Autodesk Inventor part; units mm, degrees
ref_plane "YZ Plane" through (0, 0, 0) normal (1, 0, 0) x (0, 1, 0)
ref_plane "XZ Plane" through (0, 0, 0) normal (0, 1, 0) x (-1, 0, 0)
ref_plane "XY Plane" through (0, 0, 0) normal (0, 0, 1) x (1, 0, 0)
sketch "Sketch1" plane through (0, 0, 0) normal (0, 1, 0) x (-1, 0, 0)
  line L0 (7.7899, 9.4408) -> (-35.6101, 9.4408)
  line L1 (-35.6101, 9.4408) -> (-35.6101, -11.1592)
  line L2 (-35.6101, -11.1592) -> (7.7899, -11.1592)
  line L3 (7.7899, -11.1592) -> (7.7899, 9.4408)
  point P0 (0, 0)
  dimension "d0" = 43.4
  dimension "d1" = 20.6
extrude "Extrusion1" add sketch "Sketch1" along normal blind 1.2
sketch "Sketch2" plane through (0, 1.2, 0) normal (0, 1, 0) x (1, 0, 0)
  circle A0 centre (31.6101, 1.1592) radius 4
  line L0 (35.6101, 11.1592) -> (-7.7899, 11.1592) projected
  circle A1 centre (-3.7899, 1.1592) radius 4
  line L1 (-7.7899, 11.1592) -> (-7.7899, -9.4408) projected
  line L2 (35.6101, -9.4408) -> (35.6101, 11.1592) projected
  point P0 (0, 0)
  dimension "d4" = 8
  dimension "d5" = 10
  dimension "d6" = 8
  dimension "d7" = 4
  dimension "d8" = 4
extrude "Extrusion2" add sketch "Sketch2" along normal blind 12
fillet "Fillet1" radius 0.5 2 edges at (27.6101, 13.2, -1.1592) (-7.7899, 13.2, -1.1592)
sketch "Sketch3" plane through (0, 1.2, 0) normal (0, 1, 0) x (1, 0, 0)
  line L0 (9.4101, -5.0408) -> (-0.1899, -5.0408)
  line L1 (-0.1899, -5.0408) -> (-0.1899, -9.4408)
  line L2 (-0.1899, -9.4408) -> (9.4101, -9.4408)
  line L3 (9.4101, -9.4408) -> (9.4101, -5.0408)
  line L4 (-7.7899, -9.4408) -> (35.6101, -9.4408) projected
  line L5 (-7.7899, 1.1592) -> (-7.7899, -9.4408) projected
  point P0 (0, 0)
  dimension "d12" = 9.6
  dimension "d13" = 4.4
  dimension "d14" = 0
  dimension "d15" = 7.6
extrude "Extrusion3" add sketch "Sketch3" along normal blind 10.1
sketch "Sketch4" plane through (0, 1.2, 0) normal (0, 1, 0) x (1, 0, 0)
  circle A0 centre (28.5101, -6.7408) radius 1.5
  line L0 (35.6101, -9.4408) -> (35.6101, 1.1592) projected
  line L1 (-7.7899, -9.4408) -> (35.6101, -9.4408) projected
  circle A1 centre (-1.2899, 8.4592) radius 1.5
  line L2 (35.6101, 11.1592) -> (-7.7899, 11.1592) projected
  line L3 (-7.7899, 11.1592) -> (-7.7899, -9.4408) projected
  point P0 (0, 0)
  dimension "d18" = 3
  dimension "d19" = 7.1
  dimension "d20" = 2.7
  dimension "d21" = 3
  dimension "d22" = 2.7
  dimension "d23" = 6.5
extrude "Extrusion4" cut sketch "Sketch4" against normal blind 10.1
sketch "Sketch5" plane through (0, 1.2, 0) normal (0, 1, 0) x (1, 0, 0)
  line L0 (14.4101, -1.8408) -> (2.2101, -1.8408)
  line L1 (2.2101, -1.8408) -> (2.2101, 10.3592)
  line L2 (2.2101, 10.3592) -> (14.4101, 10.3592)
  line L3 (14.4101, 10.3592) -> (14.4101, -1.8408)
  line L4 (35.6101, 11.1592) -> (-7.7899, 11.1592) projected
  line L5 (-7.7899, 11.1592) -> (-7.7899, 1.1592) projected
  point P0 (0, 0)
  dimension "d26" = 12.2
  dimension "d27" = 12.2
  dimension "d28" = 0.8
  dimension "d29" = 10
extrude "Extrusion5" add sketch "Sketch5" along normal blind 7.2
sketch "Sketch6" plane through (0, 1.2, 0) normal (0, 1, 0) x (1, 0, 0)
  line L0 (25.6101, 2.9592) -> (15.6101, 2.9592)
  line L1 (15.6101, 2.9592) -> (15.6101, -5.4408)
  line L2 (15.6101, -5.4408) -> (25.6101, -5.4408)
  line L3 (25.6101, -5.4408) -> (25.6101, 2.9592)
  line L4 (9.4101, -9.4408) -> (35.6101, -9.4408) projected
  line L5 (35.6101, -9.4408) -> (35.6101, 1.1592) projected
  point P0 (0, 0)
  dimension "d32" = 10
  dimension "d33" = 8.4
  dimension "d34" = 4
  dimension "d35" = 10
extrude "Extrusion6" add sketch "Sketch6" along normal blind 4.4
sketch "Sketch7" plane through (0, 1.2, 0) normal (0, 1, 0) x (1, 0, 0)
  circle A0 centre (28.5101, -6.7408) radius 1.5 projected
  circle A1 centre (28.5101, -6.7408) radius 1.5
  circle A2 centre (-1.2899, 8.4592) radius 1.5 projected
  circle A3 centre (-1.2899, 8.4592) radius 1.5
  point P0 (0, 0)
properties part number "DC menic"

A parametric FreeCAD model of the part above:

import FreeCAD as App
import Part
import Sketcher
Q = App.Units.Quantity


def edges_at(feature, points):
    """Names of the edges that pass closest to the given points."""
    edges = feature.Shape.Edges
    near = lambda p: min(range(len(edges)), key=lambda i: edges[i].distToShape(Part.Vertex(*p))[0])
    return sorted({f"Edge{near(p) + 1}" for p in points})


def add_polygon(sketch, points):
    """Adds a closed chain of lines whose ends are joined by coincident constraints."""
    first, n = sketch.GeometryCount, len(points)
    for a, b in zip(points, points[1:] + points[:1]):
        sketch.addGeometry(Part.LineSegment(App.Vector(*a, 0), App.Vector(*b, 0)), False)
    for i in range(n):
        sketch.addConstraint(Sketcher.Constraint("Coincident", first + i, 2, first + (i + 1) % n, 1))

doc = App.newDocument("Part")
body = doc.addObject("PartDesign::Body", "Body")

# Sketch on XZ plane
sketch1 = body.newObject("Sketcher::SketchObject", "Sketch")
sketch1.AttachmentSupport = (doc.getObject("XZ_Plane"), [""])
sketch1.MapMode = "FlatFace"
add_polygon(sketch1, [(-8, -11), (-8, 9), (36, 9), (36, -11)])  # lines 0-3
sketch1.addConstraint([
    Sketcher.Constraint("Vertical", 0),
    Sketcher.Constraint("Horizontal", 1),
    Sketcher.Constraint("Vertical", 2),
    Sketcher.Constraint("Horizontal", 3),
    Sketcher.Constraint("DistanceX", 1, 1, 1, 2, Q("43.4 mm")),
    Sketcher.Constraint("DistanceY", 0, 1, 0, 2, Q("20.6 mm")),
    Sketcher.Constraint("DistanceX", 0, 2, -1, 1, Q("7.79 mm")),
    Sketcher.Constraint("DistanceY", -1, 1, 0, 2, Q("9.4408 mm")),
])
pad1 = body.newObject("PartDesign::Pad", "Pad")
pad1.Profile = sketch1
pad1.Length = 1.2
pad1.Reversed = True

# Sketch on XZ plane
sketch2 = body.newObject("Sketcher::SketchObject", "Sketch001")
sketch2.AttachmentSupport = (doc.getObject("XZ_Plane"), [""])
sketch2.MapMode = "FlatFace"
sketch2.AttachmentOffset = App.Placement(App.Vector(0, 0, -1.2), App.Rotation())
sketch2.addGeometry([
    Part.Circle(App.Vector(31.6, -1.2, 0), App.Vector(0, 0, 1), 4),
    Part.Circle(App.Vector(-3.8, -1.2, 0), App.Vector(0, 0, 1), 4),
], False)
sketch2.addConstraint([
    Sketcher.Constraint("Equal", 0, 1),
    Sketcher.Constraint("Horizontal", 0, 3, 1, 3),
    Sketcher.Constraint("Diameter", 0, Q("8 mm")),
    Sketcher.Constraint("DistanceX", 1, 3, 0, 3, Q("35.4 mm")),
    Sketcher.Constraint("DistanceX", -1, 1, 0, 3, Q("31.61 mm")),
    Sketcher.Constraint("DistanceY", 0, 3, -1, 1, Q("1.1592 mm")),
])
pad2 = body.newObject("PartDesign::Pad", "Pad001")
pad2.Profile = sketch2
pad2.Length = 12
pad2.Reversed = True
doc.recompute()

fillet = body.newObject("PartDesign::Fillet", "Fillet")
fillet.Base = (pad2, edges_at(pad2, [(27.61, 13.2, -1.159), (-7.79, 13.2, -1.159)]))
fillet.Radius = 0.5

# Sketch on XZ plane
sketch3 = body.newObject("Sketcher::SketchObject", "Sketch002")
sketch3.AttachmentSupport = (doc.getObject("XZ_Plane"), [""])
sketch3.MapMode = "FlatFace"
sketch3.AttachmentOffset = App.Placement(App.Vector(0, 0, -1.2), App.Rotation())
add_polygon(sketch3, [(9.4, 9.4), (9.4, 5), (-0.2, 5), (-0.2, 9.4)])  # lines 0-3
sketch3.addConstraint([
    Sketcher.Constraint("Vertical", 0),
    Sketcher.Constraint("Horizontal", 1),
    Sketcher.Constraint("Vertical", 2),
    Sketcher.Constraint("Horizontal", 3),
    Sketcher.Constraint("DistanceX", 1, 2, 1, 1, Q("9.6 mm")),
    Sketcher.Constraint("DistanceY", 0, 2, 0, 1, Q("4.4 mm")),
    Sketcher.Constraint("DistanceX", -1, 1, 0, 2, Q("9.41 mm")),
    Sketcher.Constraint("DistanceY", -1, 1, 0, 2, Q("5.0408 mm")),
])
pad3 = body.newObject("PartDesign::Pad", "Pad002")
pad3.Profile = sketch3
pad3.Length = 10.1
pad3.Reversed = True

# Sketch on XZ plane
sketch4 = body.newObject("Sketcher::SketchObject", "Sketch003")
sketch4.AttachmentSupport = (doc.getObject("XZ_Plane"), [""])
sketch4.MapMode = "FlatFace"
sketch4.AttachmentOffset = App.Placement(App.Vector(0, 0, -1.2), App.Rotation())
sketch4.addGeometry([
    Part.Circle(App.Vector(28.5, 6.7, 0), App.Vector(0, 0, 1), 1.5),
    Part.Circle(App.Vector(-1.3, -8.5, 0), App.Vector(0, 0, 1), 1.5),
], False)
sketch4.addConstraint([
    Sketcher.Constraint("Equal", 0, 1),
    Sketcher.Constraint("Diameter", 0, Q("3 mm")),
    Sketcher.Constraint("DistanceX", 1, 3, 0, 3, Q("29.8 mm")),
    Sketcher.Constraint("DistanceY", 1, 3, 0, 3, Q("15.2 mm")),
    Sketcher.Constraint("DistanceX", -1, 1, 0, 3, Q("28.51 mm")),
    Sketcher.Constraint("DistanceY", -1, 1, 0, 3, Q("6.7408 mm")),
])
pocket1 = body.newObject("PartDesign::Pocket", "Pocket")
pocket1.Profile = sketch4
pocket1.Length = 10.1
pocket1.Reversed = True

# Sketch on XZ plane
sketch5 = body.newObject("Sketcher::SketchObject", "Sketch004")
sketch5.AttachmentSupport = (doc.getObject("XZ_Plane"), [""])
sketch5.MapMode = "FlatFace"
sketch5.AttachmentOffset = App.Placement(App.Vector(0, 0, -1.2), App.Rotation())
add_polygon(sketch5, [(2, 2), (14, 2), (14, -10), (2, -10)])  # lines 0-3
sketch5.addConstraint([
    Sketcher.Constraint("Horizontal", 0),
    Sketcher.Constraint("Vertical", 1),
    Sketcher.Constraint("Horizontal", 2),
    Sketcher.Constraint("Vertical", 3),
    Sketcher.Constraint("Equal", 2, 1),
    Sketcher.Constraint("DistanceX", 0, 1, 0, 2, Q("12.2 mm")),
    Sketcher.Constraint("DistanceX", -1, 1, 0, 2, Q("14.41 mm")),
    Sketcher.Constraint("DistanceY", -1, 1, 0, 2, Q("1.8408 mm")),
])
pad4 = body.newObject("PartDesign::Pad", "Pad003")
pad4.Profile = sketch5
pad4.Length = 7.2
pad4.Reversed = True

# Sketch on XZ plane
sketch6 = body.newObject("Sketcher::SketchObject", "Sketch005")
sketch6.AttachmentSupport = (doc.getObject("XZ_Plane"), [""])
sketch6.MapMode = "FlatFace"
sketch6.AttachmentOffset = App.Placement(App.Vector(0, 0, -1.2), App.Rotation())
add_polygon(sketch6, [(26, 5), (26, -3), (16, -3), (16, 5)])  # lines 0-3
sketch6.addConstraint([
    Sketcher.Constraint("Vertical", 0),
    Sketcher.Constraint("Horizontal", 1),
    Sketcher.Constraint("Vertical", 2),
    Sketcher.Constraint("Horizontal", 3),
    Sketcher.Constraint("DistanceX", 1, 2, 1, 1, Q("10 mm")),
    Sketcher.Constraint("DistanceY", 0, 2, 0, 1, Q("8.4 mm")),
    Sketcher.Constraint("DistanceX", -1, 1, 0, 2, Q("25.61 mm")),
    Sketcher.Constraint("DistanceY", 0, 2, -1, 1, Q("2.9592 mm")),
])
pad5 = body.newObject("PartDesign::Pad", "Pad004")
pad5.Profile = sketch6
pad5.Length = 4.4
pad5.Reversed = True

doc.recompute()
